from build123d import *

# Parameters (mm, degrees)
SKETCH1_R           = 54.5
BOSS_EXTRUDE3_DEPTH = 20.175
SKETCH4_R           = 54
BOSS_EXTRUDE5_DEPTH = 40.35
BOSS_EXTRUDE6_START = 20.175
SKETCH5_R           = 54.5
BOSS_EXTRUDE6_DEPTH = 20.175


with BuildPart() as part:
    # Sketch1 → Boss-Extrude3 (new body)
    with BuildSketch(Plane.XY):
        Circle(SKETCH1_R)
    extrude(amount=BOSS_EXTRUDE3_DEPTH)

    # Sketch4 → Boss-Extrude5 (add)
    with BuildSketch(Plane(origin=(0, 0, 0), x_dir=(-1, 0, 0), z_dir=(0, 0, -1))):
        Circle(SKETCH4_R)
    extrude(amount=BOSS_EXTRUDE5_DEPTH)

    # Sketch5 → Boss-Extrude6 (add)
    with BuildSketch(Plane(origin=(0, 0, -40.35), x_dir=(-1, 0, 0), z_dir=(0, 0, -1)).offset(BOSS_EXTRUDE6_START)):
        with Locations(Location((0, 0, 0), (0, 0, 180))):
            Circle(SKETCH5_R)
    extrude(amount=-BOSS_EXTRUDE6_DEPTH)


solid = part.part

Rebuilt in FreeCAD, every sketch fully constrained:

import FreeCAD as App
import Part
import Sketcher
from FreeCAD import Vector

doc = App.newDocument("Part")
params = doc.addObject("Spreadsheet::Sheet", "Params")
for row, (alias, value) in enumerate([
    ("sketch1_diameter", "109 mm"),
    ("pad1_length", "20.175 mm"),
    ("sketch2_diameter", "108 mm"),
    ("pad2_length", "40.35 mm"),
    ("sketch3_diameter", "109 mm"),
    ("pad3_length", "20.175 mm"),
], start=1):
    params.set(f"A{row}", alias)
    params.set(f"B{row}", "=" + value)
    params.setAlias(f"B{row}", alias)

body = doc.addObject("PartDesign::Body", "Body")

# Sketch on XY plane
sketch1 = doc.addObject("Sketcher::SketchObject", "Sketch")
body.addObject(sketch1)
sketch1.AttachmentSupport = (doc.XY_Plane, [""])
sketch1.MapMode = "FlatFace"
sketch1.addGeometry(Part.Circle(Vector(0, 0, 0), Vector(0, 0, 1), 54), False)
sketch1.addConstraint([
    Sketcher.Constraint("Coincident", 0, 3, -1, 1),
    Sketcher.Constraint("Diameter", 0, 109.0),
])
sketch1.setExpression("Constraints[1]", "Params.sketch1_diameter")
pad1 = doc.addObject("PartDesign::Pad", "Pad")
body.addObject(pad1)
pad1.Profile = sketch1
pad1.setExpression("Length", "Params.pad1_length")

# Sketch on XY plane
sketch2 = doc.addObject("Sketcher::SketchObject", "Sketch001")
body.addObject(sketch2)
sketch2.AttachmentSupport = (doc.XY_Plane, [""])
sketch2.MapMode = "FlatFace"
sketch2.addGeometry(Part.Circle(Vector(0, 0, 0), Vector(0, 0, 1), 54), False)
sketch2.addConstraint([
    Sketcher.Constraint("Coincident", 0, 3, -1, 1),
    Sketcher.Constraint("Diameter", 0, 108.0),
])
sketch2.setExpression("Constraints[1]", "Params.sketch2_diameter")
pad2 = doc.addObject("PartDesign::Pad", "Pad001")
body.addObject(pad2)
pad2.Profile = sketch2
pad2.setExpression("Length", "Params.pad2_length")
pad2.Reversed = True

# Sketch on XY plane
sketch3 = doc.addObject("Sketcher::SketchObject", "Sketch002")
body.addObject(sketch3)
sketch3.AttachmentSupport = (doc.XY_Plane, [""])
sketch3.MapMode = "FlatFace"
sketch3.AttachmentOffset = App.Placement(Vector(0, 0, -60.525), App.Rotation())
sketch3.addGeometry(Part.Circle(Vector(0, 0, 0), Vector(0, 0, 1), 54), False)
sketch3.addConstraint([
    Sketcher.Constraint("Coincident", 0, 3, -1, 1),
    Sketcher.Constraint("Diameter", 0, 109.0),
])
sketch3.setExpression("Constraints[1]", "Params.sketch3_diameter")
pad3 = doc.addObject("PartDesign::Pad", "Pad002")
body.addObject(pad3)
pad3.Profile = sketch3
pad3.setExpression("Length", "Params.pad3_length")

doc.recompute()
